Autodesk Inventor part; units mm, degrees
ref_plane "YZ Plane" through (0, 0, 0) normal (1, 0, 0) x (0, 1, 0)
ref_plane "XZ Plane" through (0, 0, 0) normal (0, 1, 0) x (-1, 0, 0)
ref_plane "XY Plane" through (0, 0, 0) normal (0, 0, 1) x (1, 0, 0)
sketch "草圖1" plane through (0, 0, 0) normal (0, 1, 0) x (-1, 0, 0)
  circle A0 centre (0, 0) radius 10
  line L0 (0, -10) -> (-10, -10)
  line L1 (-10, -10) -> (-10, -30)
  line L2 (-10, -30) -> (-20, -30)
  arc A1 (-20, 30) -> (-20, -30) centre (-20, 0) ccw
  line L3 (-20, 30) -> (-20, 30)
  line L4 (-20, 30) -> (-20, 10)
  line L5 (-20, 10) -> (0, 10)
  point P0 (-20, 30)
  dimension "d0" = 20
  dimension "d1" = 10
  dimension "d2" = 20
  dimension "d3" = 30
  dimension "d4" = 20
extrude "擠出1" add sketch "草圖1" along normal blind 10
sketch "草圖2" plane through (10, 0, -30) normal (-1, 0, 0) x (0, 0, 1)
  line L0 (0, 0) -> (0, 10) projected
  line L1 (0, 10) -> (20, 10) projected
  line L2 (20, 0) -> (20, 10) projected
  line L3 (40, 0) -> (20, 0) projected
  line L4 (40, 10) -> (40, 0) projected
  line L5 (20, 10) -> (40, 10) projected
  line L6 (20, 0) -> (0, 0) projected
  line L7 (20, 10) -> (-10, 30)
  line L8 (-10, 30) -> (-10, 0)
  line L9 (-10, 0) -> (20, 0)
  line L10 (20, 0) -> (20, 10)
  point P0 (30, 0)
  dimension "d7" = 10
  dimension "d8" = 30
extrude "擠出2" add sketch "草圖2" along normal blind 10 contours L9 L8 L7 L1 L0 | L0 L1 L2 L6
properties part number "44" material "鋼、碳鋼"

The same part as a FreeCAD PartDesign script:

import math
import FreeCAD as App
import Part
import Sketcher
from FreeCAD import Vector


def add_polygon(sketch, points):
    """Adds a closed chain of lines whose ends are joined by coincident constraints."""
    first, n = sketch.GeometryCount, len(points)
    for a, b in zip(points, points[1:] + points[:1]):
        sketch.addGeometry(Part.LineSegment(App.Vector(*a, 0), App.Vector(*b, 0)), False)
    for i in range(n):
        sketch.addConstraint(Sketcher.Constraint("Coincident", first + i, 2, first + (i + 1) % n, 1))

doc = App.newDocument("Part")
params = doc.addObject("Spreadsheet::Sheet", "Params")
for row, (alias, value) in enumerate([
    ("sketch1_radius", "10 mm"),
    ("sketch1_radius2", "30 mm"),
    ("pad1_length", "10 mm"),
    ("sketch2_width", "10 mm"),
    ("sketch2_width2", "30 mm"),
    ("pad2_length", "10 mm"),
], start=1):
    params.set(f"A{row}", alias)
    params.set(f"B{row}", "=" + value)
    params.setAlias(f"B{row}", alias)

body = doc.addObject("PartDesign::Body", "Body")

# Sketch on XZ plane
sketch1 = body.newObject("Sketcher::SketchObject", "Sketch")
sketch1.AttachmentSupport = (doc.getObject("XZ_Plane"), [""])
sketch1.MapMode = "FlatFace"
sketch1.addGeometry([
    Part.ArcOfCircle(Part.Circle(Vector(0, 0, 0), Vector(0, 0, 1), 10), math.radians(90), math.radians(270)),  # 0
    Part.LineSegment(Vector(0, 10, 0), Vector(20, 10, 0)),  # 1
    Part.LineSegment(Vector(20, 10, 0), Vector(20, 30, 0)),  # 2
    Part.ArcOfCircle(Part.Circle(Vector(20, 0, 0), Vector(0, 0, 1), 30), math.radians(-90), math.radians(90)),  # 3
    Part.LineSegment(Vector(20, -30, 0), Vector(10, -30, 0)),  # 4
    Part.LineSegment(Vector(10, -30, 0), Vector(10, -10, 0)),  # 5
    Part.LineSegment(Vector(10, -10, 0), Vector(0, -10, 0)),  # 6
], False)
sketch1.addConstraint([
    Sketcher.Constraint("Tangent", 0, 1, 1, 1),
    Sketcher.Constraint("Coincident", 1, 2, 2, 1),
    Sketcher.Constraint("Coincident", 2, 2, 3, 2),
    Sketcher.Constraint("Tangent", 3, 1, 4, 1),
    Sketcher.Constraint("Coincident", 4, 2, 5, 1),
    Sketcher.Constraint("Coincident", 5, 2, 6, 1),
    Sketcher.Constraint("Tangent", 6, 2, 0, 2),
    Sketcher.Constraint("Horizontal", 1),
    Sketcher.Constraint("Vertical", 2),
    Sketcher.Constraint("Horizontal", 4),
    Sketcher.Constraint("Vertical", 5),
    Sketcher.Constraint("Horizontal", 6),
    Sketcher.Constraint("Coincident", 0, 3, -1, 1),
    Sketcher.Constraint("Symmetric", 2, 2, 3, 1, -1),
    Sketcher.Constraint("Equal", 4, 6),
    Sketcher.Constraint("Equal", 1, 2),
    Sketcher.Constraint("Radius", 0, 10.0),
    Sketcher.Constraint("Radius", 3, 30.0),
])
sketch1.setExpression("Constraints[16]", "Params.sketch1_radius")
sketch1.setExpression("Constraints[17]", "Params.sketch1_radius2")
pad1 = body.newObject("PartDesign::Pad", "Pad")
pad1.Profile = sketch1
pad1.setExpression("Length", "Params.pad1_length")
pad1.Reversed = True

# Sketch on YZ plane
sketch2 = body.newObject("Sketcher::SketchObject", "Sketch001")
sketch2.AttachmentSupport = (doc.getObject("YZ_Plane"), [""])
sketch2.MapMode = "FlatFace"
sketch2.AttachmentOffset = App.Placement(Vector(0, 0, 10), App.Rotation())
add_polygon(sketch2, [(0, -40), (0, -10), (10, -10), (30, -40)])  # lines 0-3
sketch2.addConstraint([
    Sketcher.Constraint("Vertical", 0),
    Sketcher.Constraint("Horizontal", 1),
    Sketcher.Constraint("Horizontal", 3),
    Sketcher.Constraint("PointOnObject", 0, 2, -2),
    Sketcher.Constraint("Equal", 3, 0),
    Sketcher.Constraint("DistanceX", 1, 1, 1, 2, 10.0),
    Sketcher.Constraint("DistanceX", 3, 2, 3, 1, 30.0),
    Sketcher.Constraint("DistanceY", 0, 2, -1, 1, 10.0),
])
sketch2.setExpression("Constraints[9]", "Params.sketch2_width")
sketch2.setExpression("Constraints[10]", "Params.sketch2_width2")
pad2 = body.newObject("PartDesign::Pad", "Pad001")
pad2.Profile = sketch2
pad2.setExpression("Length", "Params.pad2_length")
pad2.Reversed = True

doc.recompute()
